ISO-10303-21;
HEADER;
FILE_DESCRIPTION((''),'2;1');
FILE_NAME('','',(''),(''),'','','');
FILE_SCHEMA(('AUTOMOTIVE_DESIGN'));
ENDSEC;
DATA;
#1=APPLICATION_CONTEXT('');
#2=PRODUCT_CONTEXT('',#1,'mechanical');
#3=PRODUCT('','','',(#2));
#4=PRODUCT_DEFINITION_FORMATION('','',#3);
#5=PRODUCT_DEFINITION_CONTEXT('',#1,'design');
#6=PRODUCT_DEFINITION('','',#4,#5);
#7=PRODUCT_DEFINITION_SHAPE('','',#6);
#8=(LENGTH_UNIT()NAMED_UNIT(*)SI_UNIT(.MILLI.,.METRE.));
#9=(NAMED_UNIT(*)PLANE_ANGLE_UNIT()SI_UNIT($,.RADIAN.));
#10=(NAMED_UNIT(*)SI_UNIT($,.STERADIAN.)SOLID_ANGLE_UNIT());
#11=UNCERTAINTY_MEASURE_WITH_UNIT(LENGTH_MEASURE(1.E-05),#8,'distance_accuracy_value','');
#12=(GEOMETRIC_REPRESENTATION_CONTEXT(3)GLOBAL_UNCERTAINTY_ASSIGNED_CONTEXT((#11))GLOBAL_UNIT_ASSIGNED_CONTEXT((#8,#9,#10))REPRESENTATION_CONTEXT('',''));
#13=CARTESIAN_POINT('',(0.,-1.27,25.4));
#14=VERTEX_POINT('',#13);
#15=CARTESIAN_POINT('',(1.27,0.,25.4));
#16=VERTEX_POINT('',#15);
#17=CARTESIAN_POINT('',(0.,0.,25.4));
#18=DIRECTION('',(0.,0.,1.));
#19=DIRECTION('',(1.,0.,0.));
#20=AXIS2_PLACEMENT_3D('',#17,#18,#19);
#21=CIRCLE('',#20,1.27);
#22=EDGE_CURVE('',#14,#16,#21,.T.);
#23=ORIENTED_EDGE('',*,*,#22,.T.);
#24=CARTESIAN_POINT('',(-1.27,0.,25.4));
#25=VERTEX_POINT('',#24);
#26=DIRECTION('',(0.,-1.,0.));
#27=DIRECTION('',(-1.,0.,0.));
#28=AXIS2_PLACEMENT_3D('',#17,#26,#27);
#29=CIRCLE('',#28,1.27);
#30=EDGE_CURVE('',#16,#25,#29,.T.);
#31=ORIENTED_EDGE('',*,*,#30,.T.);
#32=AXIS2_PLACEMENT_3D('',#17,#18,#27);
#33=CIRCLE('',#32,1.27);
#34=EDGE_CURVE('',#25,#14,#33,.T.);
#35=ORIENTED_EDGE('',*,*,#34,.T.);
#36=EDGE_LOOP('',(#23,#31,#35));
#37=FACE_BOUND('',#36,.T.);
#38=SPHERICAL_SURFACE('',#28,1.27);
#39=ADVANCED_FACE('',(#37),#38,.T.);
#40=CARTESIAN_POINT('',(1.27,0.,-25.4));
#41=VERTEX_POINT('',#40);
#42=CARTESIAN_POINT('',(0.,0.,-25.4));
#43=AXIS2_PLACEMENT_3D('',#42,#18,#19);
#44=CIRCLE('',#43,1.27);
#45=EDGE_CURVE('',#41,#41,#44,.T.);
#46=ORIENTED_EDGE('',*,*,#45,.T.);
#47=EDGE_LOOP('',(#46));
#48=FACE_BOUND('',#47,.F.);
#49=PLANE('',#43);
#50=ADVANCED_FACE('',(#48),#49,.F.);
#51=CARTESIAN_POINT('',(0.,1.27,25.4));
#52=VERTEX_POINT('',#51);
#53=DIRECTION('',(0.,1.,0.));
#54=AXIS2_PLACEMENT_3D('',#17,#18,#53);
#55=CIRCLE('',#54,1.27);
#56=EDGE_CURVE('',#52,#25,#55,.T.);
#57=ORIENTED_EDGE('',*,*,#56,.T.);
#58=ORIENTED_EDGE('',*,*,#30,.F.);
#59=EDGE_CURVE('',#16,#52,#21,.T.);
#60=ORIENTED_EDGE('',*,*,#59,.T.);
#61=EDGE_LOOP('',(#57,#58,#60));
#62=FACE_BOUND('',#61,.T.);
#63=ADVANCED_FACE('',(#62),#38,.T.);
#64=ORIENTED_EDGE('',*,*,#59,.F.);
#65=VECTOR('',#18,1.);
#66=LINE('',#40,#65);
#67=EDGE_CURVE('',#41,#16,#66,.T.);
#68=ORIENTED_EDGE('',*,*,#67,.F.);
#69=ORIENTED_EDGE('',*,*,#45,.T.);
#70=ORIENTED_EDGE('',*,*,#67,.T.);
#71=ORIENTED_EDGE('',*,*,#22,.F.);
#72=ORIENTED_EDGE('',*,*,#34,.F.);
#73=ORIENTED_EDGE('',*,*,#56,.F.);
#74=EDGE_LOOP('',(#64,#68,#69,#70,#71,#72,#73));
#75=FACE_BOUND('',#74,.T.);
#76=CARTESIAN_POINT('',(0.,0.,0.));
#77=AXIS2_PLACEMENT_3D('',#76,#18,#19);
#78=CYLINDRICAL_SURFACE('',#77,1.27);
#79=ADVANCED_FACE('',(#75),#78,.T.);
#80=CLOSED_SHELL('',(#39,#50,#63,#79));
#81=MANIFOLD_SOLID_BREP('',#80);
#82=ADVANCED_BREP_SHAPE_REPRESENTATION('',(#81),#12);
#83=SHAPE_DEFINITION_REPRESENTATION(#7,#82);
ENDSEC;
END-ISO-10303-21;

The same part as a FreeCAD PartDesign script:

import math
import FreeCAD as App
import Part
import Sketcher
from FreeCAD import Vector
Q = App.Units.Quantity

doc = App.newDocument("Part")
body = doc.addObject("PartDesign::Body", "Body")

# Sketch on XY plane
sketch1 = doc.addObject("Sketcher::SketchObject", "Sketch")
body.addObject(sketch1)
sketch1.AttachmentSupport = (doc.XY_Plane, [""])
sketch1.MapMode = "FlatFace"
sketch1.addGeometry(Part.Circle(Vector(0, 0, 0), Vector(0, 0, 1), 1.27), False)
sketch1.addConstraint([
    Sketcher.Constraint("Coincident", 0, 3, -1, 1),
    Sketcher.Constraint("Diameter", 0, Q("0.1 in")),
])
pad1 = doc.addObject("PartDesign::Pad", "Pad")
body.addObject(pad1)
pad1.Profile = sketch1
pad1.Length = Q("2 in")
pad1.Midplane = True

# Sketch on XY plane
sketch2 = doc.addObject("Sketcher::SketchObject", "Sketch001")
body.addObject(sketch2)
sketch2.AttachmentSupport = (doc.XY_Plane, [""])
sketch2.MapMode = "FlatFace"
sketch2.AttachmentOffset = App.Placement(Vector(0, 0, 1 * 25.4), App.Rotation())
sketch2.addGeometry([
    Part.ArcOfCircle(Part.Circle(Vector(0, 0, 0), Vector(0, 0, 1), 1.27), math.radians(180), math.radians(270)),
    Part.LineSegment(Vector(0, -1.27, 0), Vector(0, 1.27, 0)),
    Part.ArcOfCircle(Part.Circle(Vector(0, 0, 0), Vector(0, 0, 1), 1.27), math.radians(90), math.radians(180)),
], False)
sketch2.addConstraint([
    Sketcher.Constraint("Coincident", 0, 2, 1, 1),
    Sketcher.Constraint("Coincident", 1, 2, 2, 1),
    Sketcher.Constraint("Tangent", 2, 2, 0, 1),
    Sketcher.Constraint("Vertical", 1),
    Sketcher.Constraint("Coincident", 0, 3, -1, 1),
    Sketcher.Constraint("Equal", 0, 2),
    Sketcher.Constraint("PointOnObject", 0, 2, -2),
    Sketcher.Constraint("PointOnObject", 2, 2, -1),
    Sketcher.Constraint("Radius", 0, Q("0.05 in")),
])
revolution = doc.addObject("PartDesign::Revolution", "Revolution")
body.addObject(revolution)
revolution.Profile = sketch2
revolution.ReferenceAxis = (sketch2, ["V_Axis"])
revolution.Angle = 360

doc.recompute()
